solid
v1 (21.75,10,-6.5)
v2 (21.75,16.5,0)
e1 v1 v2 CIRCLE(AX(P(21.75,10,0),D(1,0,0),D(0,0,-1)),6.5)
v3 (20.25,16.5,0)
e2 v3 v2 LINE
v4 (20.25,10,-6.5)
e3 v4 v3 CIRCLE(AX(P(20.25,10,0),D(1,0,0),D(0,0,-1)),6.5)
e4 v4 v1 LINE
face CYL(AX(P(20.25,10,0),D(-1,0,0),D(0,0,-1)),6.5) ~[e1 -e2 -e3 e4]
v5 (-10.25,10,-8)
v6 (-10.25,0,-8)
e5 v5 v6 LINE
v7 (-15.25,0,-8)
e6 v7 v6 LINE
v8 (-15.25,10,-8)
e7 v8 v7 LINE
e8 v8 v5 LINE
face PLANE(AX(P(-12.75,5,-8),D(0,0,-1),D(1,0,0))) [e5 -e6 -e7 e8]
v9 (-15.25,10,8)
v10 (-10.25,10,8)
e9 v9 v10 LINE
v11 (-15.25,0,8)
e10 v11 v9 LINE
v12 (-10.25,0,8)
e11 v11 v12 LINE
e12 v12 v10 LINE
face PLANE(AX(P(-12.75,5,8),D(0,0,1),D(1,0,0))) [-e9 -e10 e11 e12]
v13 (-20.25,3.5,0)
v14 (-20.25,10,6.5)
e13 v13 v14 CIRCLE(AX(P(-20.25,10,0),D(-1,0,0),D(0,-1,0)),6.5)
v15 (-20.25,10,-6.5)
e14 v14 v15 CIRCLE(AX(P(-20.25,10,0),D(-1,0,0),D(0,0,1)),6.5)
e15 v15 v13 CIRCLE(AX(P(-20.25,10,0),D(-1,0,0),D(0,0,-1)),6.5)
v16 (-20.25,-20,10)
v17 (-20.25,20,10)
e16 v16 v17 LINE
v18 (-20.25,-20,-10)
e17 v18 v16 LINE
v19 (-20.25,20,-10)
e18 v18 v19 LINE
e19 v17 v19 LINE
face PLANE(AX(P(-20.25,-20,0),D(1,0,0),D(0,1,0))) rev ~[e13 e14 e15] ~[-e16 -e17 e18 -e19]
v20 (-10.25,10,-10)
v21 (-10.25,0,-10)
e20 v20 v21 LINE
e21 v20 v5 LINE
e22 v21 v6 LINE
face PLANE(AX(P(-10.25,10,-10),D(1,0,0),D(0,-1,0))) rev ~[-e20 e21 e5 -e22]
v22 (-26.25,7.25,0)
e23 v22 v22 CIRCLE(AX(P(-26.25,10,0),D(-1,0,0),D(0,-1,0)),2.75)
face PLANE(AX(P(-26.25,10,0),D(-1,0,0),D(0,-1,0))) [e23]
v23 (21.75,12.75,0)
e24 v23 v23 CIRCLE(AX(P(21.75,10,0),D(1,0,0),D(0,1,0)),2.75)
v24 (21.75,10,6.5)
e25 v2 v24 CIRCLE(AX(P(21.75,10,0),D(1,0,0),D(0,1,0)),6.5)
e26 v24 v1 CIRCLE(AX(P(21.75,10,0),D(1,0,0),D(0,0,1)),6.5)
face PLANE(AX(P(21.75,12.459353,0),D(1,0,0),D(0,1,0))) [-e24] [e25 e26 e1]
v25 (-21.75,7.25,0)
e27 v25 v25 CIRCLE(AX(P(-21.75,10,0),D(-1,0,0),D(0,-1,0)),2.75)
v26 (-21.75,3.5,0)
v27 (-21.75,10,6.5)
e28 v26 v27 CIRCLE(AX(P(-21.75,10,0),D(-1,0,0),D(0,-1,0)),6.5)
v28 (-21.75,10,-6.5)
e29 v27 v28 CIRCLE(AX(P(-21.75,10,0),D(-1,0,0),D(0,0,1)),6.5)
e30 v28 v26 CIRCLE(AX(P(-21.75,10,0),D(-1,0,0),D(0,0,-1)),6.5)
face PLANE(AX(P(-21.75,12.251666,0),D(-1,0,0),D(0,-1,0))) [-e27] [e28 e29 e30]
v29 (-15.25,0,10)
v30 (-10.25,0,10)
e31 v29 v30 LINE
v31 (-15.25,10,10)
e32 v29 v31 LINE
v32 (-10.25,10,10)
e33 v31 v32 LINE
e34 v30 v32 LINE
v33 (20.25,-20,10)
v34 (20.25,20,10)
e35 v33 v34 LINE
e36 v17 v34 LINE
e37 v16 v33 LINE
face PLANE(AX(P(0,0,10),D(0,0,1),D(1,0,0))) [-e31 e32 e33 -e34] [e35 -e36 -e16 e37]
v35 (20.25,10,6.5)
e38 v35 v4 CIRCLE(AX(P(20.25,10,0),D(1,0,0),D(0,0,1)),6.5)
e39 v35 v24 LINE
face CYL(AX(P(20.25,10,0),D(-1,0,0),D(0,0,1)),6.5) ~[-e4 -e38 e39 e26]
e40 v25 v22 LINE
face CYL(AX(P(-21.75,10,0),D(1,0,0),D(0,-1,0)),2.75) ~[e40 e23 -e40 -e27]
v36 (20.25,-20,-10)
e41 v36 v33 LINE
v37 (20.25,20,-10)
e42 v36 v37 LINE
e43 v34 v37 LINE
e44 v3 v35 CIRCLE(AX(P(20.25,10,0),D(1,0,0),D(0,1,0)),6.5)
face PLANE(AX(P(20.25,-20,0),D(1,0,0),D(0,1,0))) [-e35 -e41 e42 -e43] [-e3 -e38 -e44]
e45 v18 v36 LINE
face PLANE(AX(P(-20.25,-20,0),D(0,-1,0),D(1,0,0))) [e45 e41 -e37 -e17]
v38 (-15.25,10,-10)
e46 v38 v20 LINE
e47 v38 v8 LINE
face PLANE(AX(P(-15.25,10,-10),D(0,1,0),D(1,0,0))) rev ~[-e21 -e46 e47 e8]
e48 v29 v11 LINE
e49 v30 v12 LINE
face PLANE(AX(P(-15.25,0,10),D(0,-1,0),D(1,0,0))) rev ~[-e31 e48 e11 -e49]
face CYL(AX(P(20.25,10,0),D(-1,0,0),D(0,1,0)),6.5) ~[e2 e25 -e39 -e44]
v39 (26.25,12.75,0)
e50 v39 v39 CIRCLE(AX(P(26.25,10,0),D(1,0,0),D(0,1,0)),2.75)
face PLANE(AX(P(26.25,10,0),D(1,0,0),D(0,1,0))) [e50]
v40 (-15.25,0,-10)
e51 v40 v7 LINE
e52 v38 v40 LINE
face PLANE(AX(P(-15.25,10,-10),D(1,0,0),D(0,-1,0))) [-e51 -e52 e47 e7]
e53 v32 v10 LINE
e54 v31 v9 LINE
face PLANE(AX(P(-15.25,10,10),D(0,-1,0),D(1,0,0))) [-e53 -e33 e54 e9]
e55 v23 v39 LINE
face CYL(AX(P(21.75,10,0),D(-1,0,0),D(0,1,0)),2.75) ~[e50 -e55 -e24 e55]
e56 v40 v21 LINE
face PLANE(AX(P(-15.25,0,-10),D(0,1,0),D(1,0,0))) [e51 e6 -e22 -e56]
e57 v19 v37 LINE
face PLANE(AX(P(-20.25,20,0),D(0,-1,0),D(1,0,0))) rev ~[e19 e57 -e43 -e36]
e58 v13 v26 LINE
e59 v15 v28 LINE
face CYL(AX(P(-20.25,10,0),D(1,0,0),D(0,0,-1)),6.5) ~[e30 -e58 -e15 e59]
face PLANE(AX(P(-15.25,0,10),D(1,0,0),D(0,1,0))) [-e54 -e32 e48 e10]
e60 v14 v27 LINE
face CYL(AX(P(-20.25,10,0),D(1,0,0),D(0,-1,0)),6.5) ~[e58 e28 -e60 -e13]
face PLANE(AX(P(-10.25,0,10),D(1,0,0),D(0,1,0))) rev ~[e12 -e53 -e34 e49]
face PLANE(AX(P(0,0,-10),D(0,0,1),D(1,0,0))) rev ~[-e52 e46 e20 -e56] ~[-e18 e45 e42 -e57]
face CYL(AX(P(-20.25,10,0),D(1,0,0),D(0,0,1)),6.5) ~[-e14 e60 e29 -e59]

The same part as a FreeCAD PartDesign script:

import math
import FreeCAD as App
import Part
import Sketcher
from FreeCAD import Vector
Q = App.Units.Quantity

doc = App.newDocument("Part")
params = doc.addObject("Spreadsheet::Sheet", "Params")
for row, (alias, value) in enumerate([
    ("sketch1_height", "40 mm"),
    ("sketch1_width", "40.5 mm"),
    ("pad1_length", "20 mm"),
    ("sketch2_radius", "6.5 mm"),
    ("pad2_length", "1.5 mm"),
    ("sketch3_diameter", "5.5 mm"),
    ("pad3_length", "4.5 mm"),
    ("sketch4_radius", "6.5 mm"),
    ("pad4_length", "1.5 mm"),
    ("sketch5_diameter", "5.5 mm"),
    ("pad5_length", "4.5 mm"),
    ("sketch6_width", "5 mm"),
    ("sketch6_height", "10 mm"),
    ("pocket1_length", "2 mm"),
    ("sketch7_width", "5 mm"),
    ("sketch7_height", "10 mm"),
    ("pocket2_length", "2 mm"),
], start=1):
    params.set(f"A{row}", alias)
    params.set(f"B{row}", "=" + value)
    params.setAlias(f"B{row}", alias)

body = doc.addObject("PartDesign::Body", "Body")

sketch1 = body.newObject("Sketcher::SketchObject", "Sketch")
sketch1.AttachmentSupport = (doc.getObject("XY_Plane"), [""])
sketch1.MapMode = "FlatFace"
sketch1.addGeometry(Part.LineSegment(Vector(-20.25, 20, 0), Vector(-20.25, -20, 0)), False)
sketch1.addGeometry(Part.LineSegment(Vector(-20.25, -20, 0), Vector(20.25, -20, 0)), False)
sketch1.addGeometry(Part.LineSegment(Vector(20.25, -20, 0), Vector(20.25, 20, 0)), False)
sketch1.addGeometry(Part.LineSegment(Vector(20.25, 20, 0), Vector(-20.25, 20, 0)), False)
sketch1.addConstraint(Sketcher.Constraint("Coincident", 0, 2, 1, 1))
sketch1.addConstraint(Sketcher.Constraint("Coincident", 1, 2, 2, 1))
sketch1.addConstraint(Sketcher.Constraint("Coincident", 2, 2, 3, 1))
sketch1.addConstraint(Sketcher.Constraint("Coincident", 3, 2, 0, 1))
sketch1.addConstraint(Sketcher.Constraint("Vertical", 0))
sketch1.addConstraint(Sketcher.Constraint("Horizontal", 1))
sketch1.addConstraint(Sketcher.Constraint("Vertical", 2))
sketch1.addConstraint(Sketcher.Constraint("Horizontal", 3))
sketch1.addConstraint(Sketcher.Constraint("Symmetric", 0, 2, 2, 2, -1, 1))
sketch1.addConstraint(Sketcher.Constraint("DistanceY", 0, 2, 0, 1, Q("40 mm")))
sketch1.addConstraint(Sketcher.Constraint("DistanceX", 1, 1, 1, 2, Q("40.5 mm")))
sketch1.setExpression("Constraints[9]", "Params.sketch1_height")
sketch1.setExpression("Constraints[10]", "Params.sketch1_width")
pad1 = body.newObject("PartDesign::Pad", "Pad")
pad1.Profile = sketch1
pad1.setExpression("Length", "Params.pad1_length")
pad1.Midplane = True

sketch2 = body.newObject("Sketcher::SketchObject", "Sketch001")
sketch2.AttachmentSupport = (doc.getObject("YZ_Plane"), [""])
sketch2.MapMode = "FlatFace"
sketch2.AttachmentOffset = App.Placement(Vector(0, 0, -20.25), App.Rotation())
sketch2.addGeometry(Part.ArcOfCircle(Part.Circle(Vector(10, 0, 0), Vector(0, 0, 1), 6.5), math.radians(-90), math.radians(90)), False)
sketch2.addGeometry(Part.ArcOfCircle(Part.Circle(Vector(10, 0, 0), Vector(0, 0, 1), 6.5), math.radians(180), math.radians(270)), False)
sketch2.addGeometry(Part.ArcOfCircle(Part.Circle(Vector(10, 0, 0), Vector(0, 0, 1), 6.5), math.radians(90), math.radians(180)), False)
sketch2.addConstraint(Sketcher.Constraint("Tangent", 0, 1, 1, 2))
sketch2.addConstraint(Sketcher.Constraint("Tangent", 1, 1, 2, 2))
sketch2.addConstraint(Sketcher.Constraint("Tangent", 2, 1, 0, 2))
sketch2.addConstraint(Sketcher.Constraint("Symmetric", 0, 1, 2, 1, -1))
sketch2.addConstraint(Sketcher.Constraint("PointOnObject", 1, 1, -1))
sketch2.addConstraint(Sketcher.Constraint("Vertical", 2, 3, 0, 1))
sketch2.addConstraint(Sketcher.Constraint("Radius", 0, Q("6.5 mm")))
sketch2.addConstraint(Sketcher.Constraint("DistanceX", -1, 1, 0, 3, Q("10 mm")))
sketch2.setExpression("Constraints[6]", "Params.sketch2_radius")
pad2 = body.newObject("PartDesign::Pad", "Pad001")
pad2.Profile = sketch2
pad2.setExpression("Length", "Params.pad2_length")
pad2.Reversed = True

sketch3 = body.newObject("Sketcher::SketchObject", "Sketch002")
sketch3.AttachmentSupport = (doc.getObject("YZ_Plane"), [""])
sketch3.MapMode = "FlatFace"
sketch3.AttachmentOffset = App.Placement(Vector(0, 0, -21.75), App.Rotation())
sketch3.addGeometry(Part.Circle(Vector(10, 0, 0), Vector(0, 0, 1), 2.75), False)
sketch3.addConstraint(Sketcher.Constraint("PointOnObject", 0, 3, -1))
sketch3.addConstraint(Sketcher.Constraint("Diameter", 0, Q("5.5 mm")))
sketch3.addConstraint(Sketcher.Constraint("DistanceX", -1, 1, 0, 3, Q("10 mm")))
sketch3.setExpression("Constraints[1]", "Params.sketch3_diameter")
pad3 = body.newObject("PartDesign::Pad", "Pad002")
pad3.Profile = sketch3
pad3.setExpression("Length", "Params.pad3_length")
pad3.Reversed = True

sketch4 = body.newObject("Sketcher::SketchObject", "Sketch003")
sketch4.AttachmentSupport = (doc.getObject("YZ_Plane"), [""])
sketch4.MapMode = "FlatFace"
sketch4.AttachmentOffset = App.Placement(Vector(0, 0, 20.25), App.Rotation())
sketch4.addGeometry(Part.ArcOfCircle(Part.Circle(Vector(10, 0, 0), Vector(0, 0, 1), 6.5), math.radians(0), math.radians(90)), False)
sketch4.addGeometry(Part.ArcOfCircle(Part.Circle(Vector(10, 0, 0), Vector(0, 0, 1), 6.5), math.radians(90), math.radians(270)), False)
sketch4.addGeometry(Part.ArcOfCircle(Part.Circle(Vector(10, 0, 0), Vector(0, 0, 1), 6.5), math.radians(-90), math.radians(0)), False)
sketch4.addConstraint(Sketcher.Constraint("Tangent", 0, 2, 1, 1))
sketch4.addConstraint(Sketcher.Constraint("Tangent", 1, 2, 2, 1))
sketch4.addConstraint(Sketcher.Constraint("Tangent", 2, 2, 0, 1))
sketch4.addConstraint(Sketcher.Constraint("Symmetric", 0, 2, 1, 2, -1))
sketch4.addConstraint(Sketcher.Constraint("PointOnObject", 2, 2, -1))
sketch4.addConstraint(Sketcher.Constraint("Vertical", 2, 3, 0, 2))
sketch4.addConstraint(Sketcher.Constraint("Radius", 0, Q("6.5 mm")))
sketch4.addConstraint(Sketcher.Constraint("DistanceX", -1, 1, 0, 3, Q("10 mm")))
sketch4.setExpression("Constraints[6]", "Params.sketch4_radius")
pad4 = body.newObject("PartDesign::Pad", "Pad003")
pad4.Profile = sketch4
pad4.setExpression("Length", "Params.pad4_length")

sketch5 = body.newObject("Sketcher::SketchObject", "Sketch004")
sketch5.AttachmentSupport = (doc.getObject("YZ_Plane"), [""])
sketch5.MapMode = "FlatFace"
sketch5.AttachmentOffset = App.Placement(Vector(0, 0, 21.75), App.Rotation())
sketch5.addGeometry(Part.Circle(Vector(10, 0, 0), Vector(0, 0, 1), 2.75), False)
sketch5.addConstraint(Sketcher.Constraint("PointOnObject", 0, 3, -1))
sketch5.addConstraint(Sketcher.Constraint("Diameter", 0, Q("5.5 mm")))
sketch5.addConstraint(Sketcher.Constraint("DistanceX", -1, 1, 0, 3, Q("10 mm")))
sketch5.setExpression("Constraints[1]", "Params.sketch5_diameter")
pad5 = body.newObject("PartDesign::Pad", "Pad004")
pad5.Profile = sketch5
pad5.setExpression("Length", "Params.pad5_length")

sketch6 = body.newObject("Sketcher::SketchObject", "Sketch005")
sketch6.AttachmentSupport = (doc.getObject("XY_Plane"), [""])
sketch6.MapMode = "FlatFace"
sketch6.AttachmentOffset = App.Placement(Vector(0, 0, -10), App.Rotation())
sketch6.addGeometry(Part.LineSegment(Vector(-15.25, 0, 0), Vector(-15.25, 10, 0)), False)
sketch6.addGeometry(Part.LineSegment(Vector(-15.25, 10, 0), Vector(-10.25, 10, 0)), False)
sketch6.addGeometry(Part.LineSegment(Vector(-10.25, 10, 0), Vector(-10.25, 0, 0)), False)
sketch6.addGeometry(Part.LineSegment(Vector(-10.25, 0, 0), Vector(-15.25, 0, 0)), False)
sketch6.addConstraint(Sketcher.Constraint("Coincident", 0, 2, 1, 1))
sketch6.addConstraint(Sketcher.Constraint("Coincident", 1, 2, 2, 1))
sketch6.addConstraint(Sketcher.Constraint("Coincident", 2, 2, 3, 1))
sketch6.addConstraint(Sketcher.Constraint("Coincident", 3, 2, 0, 1))
sketch6.addConstraint(Sketcher.Constraint("Vertical", 0))
sketch6.addConstraint(Sketcher.Constraint("Horizontal", 1))
sketch6.addConstraint(Sketcher.Constraint("Vertical", 2))
sketch6.addConstraint(Sketcher.Constraint("Horizontal", 3))
sketch6.addConstraint(Sketcher.Constraint("PointOnObject", 2, 2, -1))
sketch6.addConstraint(Sketcher.Constraint("DistanceX", 1, 1, 1, 2, Q("5 mm")))
sketch6.addConstraint(Sketcher.Constraint("DistanceY", 0, 1, 0, 2, Q("10 mm")))
sketch6.addConstraint(Sketcher.Constraint("DistanceX", 0, 2, -1, 1, Q("15.25 mm")))
sketch6.setExpression("Constraints[9]", "Params.sketch6_width")
sketch6.setExpression("Constraints[10]", "Params.sketch6_height")
pocket1 = body.newObject("PartDesign::Pocket", "Pocket")
pocket1.Profile = sketch6
pocket1.setExpression("Length", "Params.pocket1_length")
pocket1.Reversed = True

sketch7 = body.newObject("Sketcher::SketchObject", "Sketch006")
sketch7.AttachmentSupport = (doc.getObject("XY_Plane"), [""])
sketch7.MapMode = "FlatFace"
sketch7.AttachmentOffset = App.Placement(Vector(0, 0, 10), App.Rotation())
sketch7.addGeometry(Part.LineSegment(Vector(-15.25, 10, 0), Vector(-15.25, 0, 0)), False)
sketch7.addGeometry(Part.LineSegment(Vector(-15.25, 0, 0), Vector(-10.25, 0, 0)), False)
sketch7.addGeometry(Part.LineSegment(Vector(-10.25, 0, 0), Vector(-10.25, 10, 0)), False)
sketch7.addGeometry(Part.LineSegment(Vector(-10.25, 10, 0), Vector(-15.25, 10, 0)), False)
sketch7.addConstraint(Sketcher.Constraint("Coincident", 0, 2, 1, 1))
sketch7.addConstraint(Sketcher.Constraint("Coincident", 1, 2, 2, 1))
sketch7.addConstraint(Sketcher.Constraint("Coincident", 2, 2, 3, 1))
sketch7.addConstraint(Sketcher.Constraint("Coincident", 3, 2, 0, 1))
sketch7.addConstraint(Sketcher.Constraint("Vertical", 0))
sketch7.addConstraint(Sketcher.Constraint("Horizontal", 1))
sketch7.addConstraint(Sketcher.Constraint("Vertical", 2))
sketch7.addConstraint(Sketcher.Constraint("Horizontal", 3))
sketch7.addConstraint(Sketcher.Constraint("PointOnObject", 0, 2, -1))
sketch7.addConstraint(Sketcher.Constraint("DistanceX", 1, 1, 1, 2, Q("5 mm")))
sketch7.addConstraint(Sketcher.Constraint("DistanceY", 0, 2, 0, 1, Q("10 mm")))
sketch7.addConstraint(Sketcher.Constraint("DistanceX", 0, 2, -1, 1, Q("15.25 mm")))
sketch7.setExpression("Constraints[9]", "Params.sketch7_width")
sketch7.setExpression("Constraints[10]", "Params.sketch7_height")
pocket2 = body.newObject("PartDesign::Pocket", "Pocket001")
pocket2.Profile = sketch7
pocket2.setExpression("Length", "Params.pocket2_length")

doc.recompute()
